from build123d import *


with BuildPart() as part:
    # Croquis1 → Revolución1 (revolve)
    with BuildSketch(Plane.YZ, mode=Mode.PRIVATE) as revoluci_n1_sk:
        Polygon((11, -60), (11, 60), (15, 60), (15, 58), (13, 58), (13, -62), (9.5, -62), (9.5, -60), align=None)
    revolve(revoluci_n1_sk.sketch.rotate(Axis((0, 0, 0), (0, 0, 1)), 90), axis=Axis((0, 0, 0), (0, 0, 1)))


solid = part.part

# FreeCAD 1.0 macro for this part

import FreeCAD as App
import Part
import Sketcher
Q = App.Units.Quantity

doc = App.newDocument("Part")
body = doc.addObject("PartDesign::Body", "Body")

# Sketch on YZ plane
sketch1 = doc.addObject("Sketcher::SketchObject", "Sketch")
body.addObject(sketch1)
sketch1.AttachmentSupport = (doc.YZ_Plane, [""])
sketch1.MapMode = "FlatFace"
sketch1.addGeometry([
    Part.LineSegment(App.Vector(11, 60, 0), App.Vector(11, -60, 0)),  # 0
    Part.LineSegment(App.Vector(11, -60, 0), App.Vector(9.5, -60, 0)),  # 1
    Part.LineSegment(App.Vector(9.5, -60, 0), App.Vector(9.5, -62, 0)),  # 2
    Part.LineSegment(App.Vector(9.5, -62, 0), App.Vector(13, -62, 0)),  # 3
    Part.LineSegment(App.Vector(13, -62, 0), App.Vector(13, 58, 0)),  # 4
    Part.LineSegment(App.Vector(13, 58, 0), App.Vector(15, 58, 0)),  # 5
    Part.LineSegment(App.Vector(15, 58, 0), App.Vector(15, 60, 0)),  # 6
    Part.LineSegment(App.Vector(15, 60, 0), App.Vector(11, 60, 0)),  # 7
], False)
sketch1.addConstraint([
    Sketcher.Constraint("Coincident", 0, 2, 1, 1),
    Sketcher.Constraint("Coincident", 1, 2, 2, 1),
    Sketcher.Constraint("Coincident", 2, 2, 3, 1),
    Sketcher.Constraint("Coincident", 3, 2, 4, 1),
    Sketcher.Constraint("Coincident", 4, 2, 5, 1),
    Sketcher.Constraint("Coincident", 5, 2, 6, 1),
    Sketcher.Constraint("Coincident", 6, 2, 7, 1),
    Sketcher.Constraint("Coincident", 7, 2, 0, 1),
    Sketcher.Constraint("Vertical", 0),
    Sketcher.Constraint("Horizontal", 1),
    Sketcher.Constraint("Vertical", 2),
    Sketcher.Constraint("Horizontal", 3),
    Sketcher.Constraint("Vertical", 4),
    Sketcher.Constraint("Horizontal", 5),
    Sketcher.Constraint("Vertical", 6),
    Sketcher.Constraint("Horizontal", 7),
    Sketcher.Constraint("Equal", 5, 2),
    Sketcher.Constraint("Equal", 0, 4),
    Sketcher.Constraint("DistanceX", 5, 1, 5, 2, Q("2 mm")),
    Sketcher.Constraint("DistanceX", 7, 2, 7, 1, Q("4 mm")),
    Sketcher.Constraint("DistanceY", 0, 2, 0, 1, Q("120 mm")),
    Sketcher.Constraint("DistanceX", 1, 2, 1, 1, Q("1.5 mm")),
    Sketcher.Constraint("DistanceX", -1, 1, 0, 2, Q("11 mm")),
    Sketcher.Constraint("DistanceY", 0, 2, -1, 1, Q("60 mm")),
])
revolution = doc.addObject("PartDesign::Revolution", "Revolution")
body.addObject(revolution)
revolution.Profile = sketch1
revolution.ReferenceAxis = (sketch1, ["V_Axis"])
revolution.Angle = 360

doc.recompute()
